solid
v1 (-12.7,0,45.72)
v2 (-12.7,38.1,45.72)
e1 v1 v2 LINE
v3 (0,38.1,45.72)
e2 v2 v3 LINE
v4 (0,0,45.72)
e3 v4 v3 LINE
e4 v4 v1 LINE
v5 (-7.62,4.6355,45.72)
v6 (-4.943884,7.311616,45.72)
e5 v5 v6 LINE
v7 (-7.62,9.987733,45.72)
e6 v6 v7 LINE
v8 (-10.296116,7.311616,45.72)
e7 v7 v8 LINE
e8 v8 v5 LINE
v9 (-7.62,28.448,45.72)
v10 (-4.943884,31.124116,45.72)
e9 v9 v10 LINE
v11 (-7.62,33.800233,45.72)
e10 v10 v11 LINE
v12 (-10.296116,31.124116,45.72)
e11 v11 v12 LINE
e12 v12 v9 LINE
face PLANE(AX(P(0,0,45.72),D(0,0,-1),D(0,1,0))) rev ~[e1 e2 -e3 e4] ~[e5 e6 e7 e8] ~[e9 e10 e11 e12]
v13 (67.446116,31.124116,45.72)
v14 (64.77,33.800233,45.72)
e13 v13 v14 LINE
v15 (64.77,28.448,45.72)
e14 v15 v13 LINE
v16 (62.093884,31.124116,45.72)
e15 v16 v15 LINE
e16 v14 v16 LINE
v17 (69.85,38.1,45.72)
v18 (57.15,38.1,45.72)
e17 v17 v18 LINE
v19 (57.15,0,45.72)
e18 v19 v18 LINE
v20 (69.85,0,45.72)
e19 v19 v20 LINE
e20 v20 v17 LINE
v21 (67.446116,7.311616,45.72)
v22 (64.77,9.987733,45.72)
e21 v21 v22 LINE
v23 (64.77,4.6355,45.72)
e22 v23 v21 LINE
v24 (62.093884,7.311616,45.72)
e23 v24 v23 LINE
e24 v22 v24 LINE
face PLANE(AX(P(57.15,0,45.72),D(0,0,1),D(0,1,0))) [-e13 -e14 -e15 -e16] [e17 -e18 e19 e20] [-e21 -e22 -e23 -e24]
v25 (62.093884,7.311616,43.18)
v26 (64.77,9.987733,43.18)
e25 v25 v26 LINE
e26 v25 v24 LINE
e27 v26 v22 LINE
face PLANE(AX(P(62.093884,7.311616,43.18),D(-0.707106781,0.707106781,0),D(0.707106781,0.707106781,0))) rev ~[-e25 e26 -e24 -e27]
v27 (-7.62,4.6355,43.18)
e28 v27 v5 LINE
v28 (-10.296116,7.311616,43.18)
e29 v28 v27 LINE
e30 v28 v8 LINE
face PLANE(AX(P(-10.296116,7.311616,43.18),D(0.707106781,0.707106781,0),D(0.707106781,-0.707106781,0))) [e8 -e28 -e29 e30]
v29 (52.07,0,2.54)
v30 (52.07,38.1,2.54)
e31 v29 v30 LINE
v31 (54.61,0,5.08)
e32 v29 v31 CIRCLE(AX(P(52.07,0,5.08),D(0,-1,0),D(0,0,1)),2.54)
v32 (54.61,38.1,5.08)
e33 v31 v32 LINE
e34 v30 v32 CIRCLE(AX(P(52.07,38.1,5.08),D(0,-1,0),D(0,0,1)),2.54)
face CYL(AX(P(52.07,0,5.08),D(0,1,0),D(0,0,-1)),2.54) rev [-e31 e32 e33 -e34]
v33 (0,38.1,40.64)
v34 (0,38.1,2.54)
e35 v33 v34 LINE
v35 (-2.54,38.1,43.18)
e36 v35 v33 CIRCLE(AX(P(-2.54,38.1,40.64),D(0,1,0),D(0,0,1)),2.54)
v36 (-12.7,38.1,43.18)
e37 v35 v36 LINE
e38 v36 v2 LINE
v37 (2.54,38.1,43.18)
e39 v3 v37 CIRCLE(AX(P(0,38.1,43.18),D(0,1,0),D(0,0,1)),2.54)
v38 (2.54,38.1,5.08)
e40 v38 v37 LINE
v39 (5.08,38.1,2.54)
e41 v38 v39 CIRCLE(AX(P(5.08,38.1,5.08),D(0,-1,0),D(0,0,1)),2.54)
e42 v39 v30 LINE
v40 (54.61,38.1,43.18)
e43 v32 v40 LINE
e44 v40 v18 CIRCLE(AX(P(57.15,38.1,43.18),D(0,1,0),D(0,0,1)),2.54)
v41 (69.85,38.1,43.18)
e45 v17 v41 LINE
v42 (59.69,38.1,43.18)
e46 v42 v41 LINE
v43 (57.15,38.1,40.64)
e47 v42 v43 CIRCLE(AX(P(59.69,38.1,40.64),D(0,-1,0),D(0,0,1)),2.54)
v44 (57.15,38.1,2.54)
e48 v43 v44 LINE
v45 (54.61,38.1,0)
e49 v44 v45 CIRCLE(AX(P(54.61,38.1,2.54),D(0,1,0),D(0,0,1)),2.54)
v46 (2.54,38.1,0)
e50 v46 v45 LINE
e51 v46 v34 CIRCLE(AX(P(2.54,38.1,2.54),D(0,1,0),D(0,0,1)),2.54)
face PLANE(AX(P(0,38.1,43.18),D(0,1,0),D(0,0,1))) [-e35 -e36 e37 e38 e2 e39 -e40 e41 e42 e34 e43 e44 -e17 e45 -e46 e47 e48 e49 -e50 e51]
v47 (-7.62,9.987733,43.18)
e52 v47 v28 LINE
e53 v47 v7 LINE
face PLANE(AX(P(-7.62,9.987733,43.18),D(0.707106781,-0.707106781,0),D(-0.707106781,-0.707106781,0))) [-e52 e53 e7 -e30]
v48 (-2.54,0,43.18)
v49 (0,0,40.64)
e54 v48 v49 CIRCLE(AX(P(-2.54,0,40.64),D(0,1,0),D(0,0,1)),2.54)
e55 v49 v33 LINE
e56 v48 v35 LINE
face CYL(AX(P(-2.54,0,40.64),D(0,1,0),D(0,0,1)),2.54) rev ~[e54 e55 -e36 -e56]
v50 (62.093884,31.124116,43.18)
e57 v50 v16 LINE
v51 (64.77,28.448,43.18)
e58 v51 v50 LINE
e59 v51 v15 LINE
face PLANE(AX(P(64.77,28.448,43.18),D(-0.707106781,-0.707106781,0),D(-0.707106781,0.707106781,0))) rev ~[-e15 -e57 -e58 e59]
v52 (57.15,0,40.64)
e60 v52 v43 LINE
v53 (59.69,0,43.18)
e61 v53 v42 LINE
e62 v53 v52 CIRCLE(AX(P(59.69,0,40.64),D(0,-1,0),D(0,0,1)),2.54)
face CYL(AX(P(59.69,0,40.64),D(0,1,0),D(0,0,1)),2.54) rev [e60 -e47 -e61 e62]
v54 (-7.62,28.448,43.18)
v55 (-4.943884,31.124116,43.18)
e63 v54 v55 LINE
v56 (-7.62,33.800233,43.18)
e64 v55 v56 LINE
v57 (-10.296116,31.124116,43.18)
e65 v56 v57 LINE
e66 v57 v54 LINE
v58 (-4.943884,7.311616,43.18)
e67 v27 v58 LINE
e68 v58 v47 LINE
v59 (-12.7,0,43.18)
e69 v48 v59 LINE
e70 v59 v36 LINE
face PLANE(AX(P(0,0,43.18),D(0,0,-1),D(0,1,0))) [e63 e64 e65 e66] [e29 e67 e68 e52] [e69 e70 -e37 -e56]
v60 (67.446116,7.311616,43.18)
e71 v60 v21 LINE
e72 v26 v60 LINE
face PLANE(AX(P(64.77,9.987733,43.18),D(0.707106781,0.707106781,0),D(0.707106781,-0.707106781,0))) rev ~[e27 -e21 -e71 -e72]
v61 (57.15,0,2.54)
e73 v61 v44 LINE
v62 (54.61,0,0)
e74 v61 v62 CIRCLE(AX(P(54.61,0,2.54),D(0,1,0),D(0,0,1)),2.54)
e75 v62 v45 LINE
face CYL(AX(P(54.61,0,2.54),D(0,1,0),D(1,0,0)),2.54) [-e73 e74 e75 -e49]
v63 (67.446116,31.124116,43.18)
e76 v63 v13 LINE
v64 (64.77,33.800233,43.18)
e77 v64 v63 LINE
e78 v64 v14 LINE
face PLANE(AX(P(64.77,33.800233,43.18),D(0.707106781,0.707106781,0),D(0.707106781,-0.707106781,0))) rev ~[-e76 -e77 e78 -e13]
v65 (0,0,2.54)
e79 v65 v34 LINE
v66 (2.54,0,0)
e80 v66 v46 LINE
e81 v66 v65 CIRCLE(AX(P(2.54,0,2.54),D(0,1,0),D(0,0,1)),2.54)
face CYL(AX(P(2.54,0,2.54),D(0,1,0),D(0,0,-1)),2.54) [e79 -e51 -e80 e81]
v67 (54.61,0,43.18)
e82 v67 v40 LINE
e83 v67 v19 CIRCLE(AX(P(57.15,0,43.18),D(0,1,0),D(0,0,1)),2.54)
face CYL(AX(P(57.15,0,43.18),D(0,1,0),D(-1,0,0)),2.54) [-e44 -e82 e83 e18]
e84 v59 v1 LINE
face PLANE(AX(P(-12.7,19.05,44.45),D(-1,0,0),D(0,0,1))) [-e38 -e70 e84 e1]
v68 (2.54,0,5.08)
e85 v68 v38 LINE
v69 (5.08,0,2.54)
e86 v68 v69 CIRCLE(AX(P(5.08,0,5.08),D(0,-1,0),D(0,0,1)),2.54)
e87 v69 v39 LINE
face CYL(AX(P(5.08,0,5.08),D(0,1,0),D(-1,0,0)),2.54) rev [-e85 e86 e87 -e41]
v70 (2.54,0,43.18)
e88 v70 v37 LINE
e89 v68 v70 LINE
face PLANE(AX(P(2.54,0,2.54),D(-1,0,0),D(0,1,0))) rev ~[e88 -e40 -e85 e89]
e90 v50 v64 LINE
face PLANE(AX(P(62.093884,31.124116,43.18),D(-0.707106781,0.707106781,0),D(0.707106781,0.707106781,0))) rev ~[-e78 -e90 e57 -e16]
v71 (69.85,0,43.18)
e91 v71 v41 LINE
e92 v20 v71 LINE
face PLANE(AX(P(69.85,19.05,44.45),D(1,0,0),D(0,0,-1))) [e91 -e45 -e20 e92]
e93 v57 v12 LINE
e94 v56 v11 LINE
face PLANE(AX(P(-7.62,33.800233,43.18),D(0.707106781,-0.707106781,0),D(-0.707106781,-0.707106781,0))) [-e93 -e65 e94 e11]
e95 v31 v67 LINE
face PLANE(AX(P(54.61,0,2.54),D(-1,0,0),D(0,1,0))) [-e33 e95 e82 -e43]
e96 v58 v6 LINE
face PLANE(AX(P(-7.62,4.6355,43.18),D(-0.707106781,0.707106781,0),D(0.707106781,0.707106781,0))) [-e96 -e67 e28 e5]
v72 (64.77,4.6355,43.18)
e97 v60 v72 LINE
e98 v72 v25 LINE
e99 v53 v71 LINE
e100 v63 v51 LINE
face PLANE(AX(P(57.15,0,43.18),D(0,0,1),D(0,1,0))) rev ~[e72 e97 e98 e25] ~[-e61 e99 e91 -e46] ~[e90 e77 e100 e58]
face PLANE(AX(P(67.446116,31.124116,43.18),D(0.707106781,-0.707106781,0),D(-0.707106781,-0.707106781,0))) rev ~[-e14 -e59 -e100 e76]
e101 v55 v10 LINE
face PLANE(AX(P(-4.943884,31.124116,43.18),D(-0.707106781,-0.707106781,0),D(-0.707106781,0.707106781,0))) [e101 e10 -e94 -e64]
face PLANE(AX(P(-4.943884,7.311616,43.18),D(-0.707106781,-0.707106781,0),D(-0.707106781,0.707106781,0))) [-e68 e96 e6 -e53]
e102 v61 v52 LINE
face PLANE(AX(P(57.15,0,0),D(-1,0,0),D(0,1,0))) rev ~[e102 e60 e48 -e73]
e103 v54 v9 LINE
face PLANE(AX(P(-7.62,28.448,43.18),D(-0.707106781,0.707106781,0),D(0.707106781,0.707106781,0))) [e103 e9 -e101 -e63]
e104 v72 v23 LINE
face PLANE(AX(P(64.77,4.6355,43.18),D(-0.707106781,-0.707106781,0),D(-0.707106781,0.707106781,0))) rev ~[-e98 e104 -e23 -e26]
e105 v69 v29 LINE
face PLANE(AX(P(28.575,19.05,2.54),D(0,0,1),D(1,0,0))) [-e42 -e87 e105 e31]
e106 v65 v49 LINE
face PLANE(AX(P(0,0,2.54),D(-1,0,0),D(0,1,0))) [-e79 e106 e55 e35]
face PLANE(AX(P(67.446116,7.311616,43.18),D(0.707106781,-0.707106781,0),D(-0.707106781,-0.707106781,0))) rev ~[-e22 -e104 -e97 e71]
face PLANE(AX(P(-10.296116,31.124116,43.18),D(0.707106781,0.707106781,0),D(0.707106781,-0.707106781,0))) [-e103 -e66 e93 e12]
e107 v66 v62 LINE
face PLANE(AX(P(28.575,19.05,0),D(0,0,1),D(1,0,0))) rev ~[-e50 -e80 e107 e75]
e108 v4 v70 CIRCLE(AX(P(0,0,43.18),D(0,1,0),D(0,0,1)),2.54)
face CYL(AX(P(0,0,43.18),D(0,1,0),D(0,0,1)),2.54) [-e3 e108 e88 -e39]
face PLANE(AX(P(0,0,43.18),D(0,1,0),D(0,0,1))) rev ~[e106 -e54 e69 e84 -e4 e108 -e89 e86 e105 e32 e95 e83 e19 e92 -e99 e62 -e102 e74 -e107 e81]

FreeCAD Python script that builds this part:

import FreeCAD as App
import Part
import Sketcher
from FreeCAD import Vector
Q = App.Units.Quantity


def edges_at(feature, points):
    """Names of the edges that pass closest to the given points."""
    edges = feature.Shape.Edges
    near = lambda p: min(range(len(edges)), key=lambda i: edges[i].distToShape(Part.Vertex(*p))[0])
    return sorted({f"Edge{near(p) + 1}" for p in points})

doc = App.newDocument("Part")
body = doc.addObject("PartDesign::Body", "Body")

# Sketch on XY plane
sketch1 = doc.addObject("Sketcher::SketchObject", "Sketch")
body.addObject(sketch1)
sketch1.AttachmentSupport = (doc.XY_Plane, [""])
sketch1.MapMode = "FlatFace"
sketch1.addGeometry(Part.LineSegment(Vector(0, 38, 0), Vector(0, 0, 0)), False)
sketch1.addGeometry(Part.LineSegment(Vector(0, 0, 0), Vector(57, 0, 0)), False)
sketch1.addGeometry(Part.LineSegment(Vector(57, 0, 0), Vector(57, 38, 0)), False)
sketch1.addGeometry(Part.LineSegment(Vector(57, 38, 0), Vector(0, 38, 0)), False)
sketch1.addConstraint(Sketcher.Constraint("Coincident", 0, 2, 1, 1))
sketch1.addConstraint(Sketcher.Constraint("Coincident", 1, 2, 2, 1))
sketch1.addConstraint(Sketcher.Constraint("Coincident", 2, 2, 3, 1))
sketch1.addConstraint(Sketcher.Constraint("Coincident", 3, 2, 0, 1))
sketch1.addConstraint(Sketcher.Constraint("Vertical", 0))
sketch1.addConstraint(Sketcher.Constraint("Horizontal", 1))
sketch1.addConstraint(Sketcher.Constraint("Vertical", 2))
sketch1.addConstraint(Sketcher.Constraint("Horizontal", 3))
sketch1.addConstraint(Sketcher.Constraint("Coincident", 0, 2, -1, 1))
sketch1.addConstraint(Sketcher.Constraint("DistanceY", 0, 2, 0, 1, Q("1.5 in")))
sketch1.addConstraint(Sketcher.Constraint("DistanceX", 1, 1, 1, 2, Q("2.25 in")))
pad1 = doc.addObject("PartDesign::Pad", "Pad")
body.addObject(pad1)
pad1.Profile = sketch1
pad1.Length = Q("0.1 in")

# Sketch on XY plane
sketch2 = doc.addObject("Sketcher::SketchObject", "Sketch001")
body.addObject(sketch2)
sketch2.AttachmentSupport = (doc.XY_Plane, [""])
sketch2.MapMode = "FlatFace"
sketch2.AttachmentOffset = App.Placement(Vector(0, 0, 0.1 * 25.4), App.Rotation())
sketch2.addGeometry(Part.LineSegment(Vector(0, 38.1, 0), Vector(0, 0, 0)), False)
sketch2.addGeometry(Part.LineSegment(Vector(0, 0, 0), Vector(2.5, 0, 0)), False)
sketch2.addGeometry(Part.LineSegment(Vector(2.5, 0, 0), Vector(2.5, 38.1, 0)), False)
sketch2.addGeometry(Part.LineSegment(Vector(2.5, 38.1, 0), Vector(0, 38.1, 0)), False)
sketch2.addGeometry(Part.LineSegment(Vector(54.6, 38.1, 0), Vector(54.6, 0, 0)), False)
sketch2.addGeometry(Part.LineSegment(Vector(54.6, 0, 0), Vector(57.1, 0, 0)), False)
sketch2.addGeometry(Part.LineSegment(Vector(57.1, 0, 0), Vector(57.1, 38.1, 0)), False)
sketch2.addGeometry(Part.LineSegment(Vector(57.1, 38.1, 0), Vector(54.6, 38.1, 0)), False)
sketch2.addConstraint(Sketcher.Constraint("Coincident", 0, 2, 1, 1))
sketch2.addConstraint(Sketcher.Constraint("Coincident", 1, 2, 2, 1))
sketch2.addConstraint(Sketcher.Constraint("Coincident", 2, 2, 3, 1))
sketch2.addConstraint(Sketcher.Constraint("Coincident", 3, 2, 0, 1))
sketch2.addConstraint(Sketcher.Constraint("Coincident", 4, 2, 5, 1))
sketch2.addConstraint(Sketcher.Constraint("Coincident", 5, 2, 6, 1))
sketch2.addConstraint(Sketcher.Constraint("Coincident", 6, 2, 7, 1))
sketch2.addConstraint(Sketcher.Constraint("Coincident", 7, 2, 4, 1))
sketch2.addConstraint(Sketcher.Constraint("Vertical", 0))
sketch2.addConstraint(Sketcher.Constraint("Horizontal", 1))
sketch2.addConstraint(Sketcher.Constraint("Vertical", 2))
sketch2.addConstraint(Sketcher.Constraint("Horizontal", 3))
sketch2.addConstraint(Sketcher.Constraint("Vertical", 4))
sketch2.addConstraint(Sketcher.Constraint("Horizontal", 5))
sketch2.addConstraint(Sketcher.Constraint("Vertical", 6))
sketch2.addConstraint(Sketcher.Constraint("Horizontal", 7))
sketch2.addConstraint(Sketcher.Constraint("Coincident", 0, 2, -1, 1))
sketch2.addConstraint(Sketcher.Constraint("PointOnObject", 4, 2, -1))
sketch2.addConstraint(Sketcher.Constraint("Horizontal", 3, 2, 6, 2))
sketch2.addConstraint(Sketcher.Constraint("Equal", 3, 5))
sketch2.addConstraint(Sketcher.Constraint("DistanceX", 1, 1, 1, 2, Q("0.1 in")))
sketch2.addConstraint(Sketcher.Constraint("DistanceY", 0, 2, 0, 1, Q("1.5 in")))
sketch2.addConstraint(Sketcher.Constraint("DistanceX", -1, 1, 4, 2, Q("2.15 in")))
pad2 = doc.addObject("PartDesign::Pad", "Pad001")
body.addObject(pad2)
pad2.Profile = sketch2
pad2.Length = Q("1.7 in")

# Sketch on YZ plane
sketch3 = doc.addObject("Sketcher::SketchObject", "Sketch002")
body.addObject(sketch3)
sketch3.AttachmentSupport = (doc.YZ_Plane, [""])
sketch3.MapMode = "FlatFace"
sketch3.AttachmentOffset = App.Placement(Vector(0, 0, 2.25 * 25.4), App.Rotation())
sketch3.addGeometry(Part.LineSegment(Vector(38.1, 45.7, 0), Vector(0, 45.7, 0)), False)
sketch3.addGeometry(Part.LineSegment(Vector(0, 45.7, 0), Vector(0, 43.2, 0)), False)
sketch3.addGeometry(Part.LineSegment(Vector(0, 43.2, 0), Vector(38.1, 43.2, 0)), False)
sketch3.addGeometry(Part.LineSegment(Vector(38.1, 43.2, 0), Vector(38.1, 45.7, 0)), False)
sketch3.addConstraint(Sketcher.Constraint("Coincident", 0, 2, 1, 1))
sketch3.addConstraint(Sketcher.Constraint("Coincident", 1, 2, 2, 1))
sketch3.addConstraint(Sketcher.Constraint("Coincident", 2, 2, 3, 1))
sketch3.addConstraint(Sketcher.Constraint("Coincident", 3, 2, 0, 1))
sketch3.addConstraint(Sketcher.Constraint("Horizontal", 0))
sketch3.addConstraint(Sketcher.Constraint("Vertical", 1))
sketch3.addConstraint(Sketcher.Constraint("Horizontal", 2))
sketch3.addConstraint(Sketcher.Constraint("Vertical", 3))
sketch3.addConstraint(Sketcher.Constraint("PointOnObject", 0, 2, -2))
sketch3.addConstraint(Sketcher.Constraint("DistanceX", 0, 2, 0, 1, Q("1.5 in")))
sketch3.addConstraint(Sketcher.Constraint("DistanceY", 1, 2, 1, 1, Q("0.1 in")))
sketch3.addConstraint(Sketcher.Constraint("DistanceY", -1, 1, 0, 2, Q("1.8 in")))
pad3 = doc.addObject("PartDesign::Pad", "Pad002")
body.addObject(pad3)
pad3.Profile = sketch3
pad3.Length = Q("0.5 in")

# Sketch on YZ plane
sketch4 = doc.addObject("Sketcher::SketchObject", "Sketch003")
body.addObject(sketch4)
sketch4.AttachmentSupport = (doc.YZ_Plane, [""])
sketch4.MapMode = "FlatFace"
sketch4.addGeometry(Part.LineSegment(Vector(38.1, 43.2, 0), Vector(0, 43.2, 0)), False)
sketch4.addGeometry(Part.LineSegment(Vector(0, 43.2, 0), Vector(0, 45.7, 0)), False)
sketch4.addGeometry(Part.LineSegment(Vector(0, 45.7, 0), Vector(38.1, 45.7, 0)), False)
sketch4.addGeometry(Part.LineSegment(Vector(38.1, 45.7, 0), Vector(38.1, 43.2, 0)), False)
sketch4.addConstraint(Sketcher.Constraint("Coincident", 0, 2, 1, 1))
sketch4.addConstraint(Sketcher.Constraint("Coincident", 1, 2, 2, 1))
sketch4.addConstraint(Sketcher.Constraint("Coincident", 2, 2, 3, 1))
sketch4.addConstraint(Sketcher.Constraint("Coincident", 3, 2, 0, 1))
sketch4.addConstraint(Sketcher.Constraint("Horizontal", 0))
sketch4.addConstraint(Sketcher.Constraint("Vertical", 1))
sketch4.addConstraint(Sketcher.Constraint("Horizontal", 2))
sketch4.addConstraint(Sketcher.Constraint("Vertical", 3))
sketch4.addConstraint(Sketcher.Constraint("PointOnObject", 0, 2, -2))
sketch4.addConstraint(Sketcher.Constraint("DistanceX", 0, 2, 0, 1, Q("1.5 in")))
sketch4.addConstraint(Sketcher.Constraint("DistanceY", 1, 1, 1, 2, Q("0.1 in")))
sketch4.addConstraint(Sketcher.Constraint("DistanceY", -1, 1, 0, 2, Q("1.7 in")))
pad4 = doc.addObject("PartDesign::Pad", "Pad003")
body.addObject(pad4)
pad4.Profile = sketch4
pad4.Length = Q("0.5 in")
pad4.Reversed = True
doc.recompute()

fillet = doc.addObject("PartDesign::Fillet", "Fillet")
body.addObject(fillet)
fillet.Base = (pad4, edges_at(pad4, [
    (2.54, 19.05, 2.54),
    (2.54, 19.05, 45.72),
    (54.61, 19.05, 2.54),
    (54.61, 19.05, 45.72),
    (57.15, 19.05, 43.18),
    (57.15, 19.05, 0),
    (0, 19.05, 43.18),
    (0, 19.05, 0),
]))
fillet.Radius = Q("0.1 in")

# Sketch on XY plane
sketch5 = doc.addObject("Sketcher::SketchObject", "Sketch004")
body.addObject(sketch5)
sketch5.AttachmentSupport = (doc.XY_Plane, [""])
sketch5.MapMode = "FlatFace"
sketch5.AttachmentOffset = App.Placement(Vector(0, 0, 1.7 * 25.4), App.Rotation())
sketch5.addGeometry(Part.LineSegment(Vector(64.8, 33.8, 0), Vector(67.4, 31.1, 0)), False)
sketch5.addGeometry(Part.LineSegment(Vector(67.4, 31.1, 0), Vector(64.8, 28.4, 0)), False)
sketch5.addGeometry(Part.LineSegment(Vector(64.8, 28.4, 0), Vector(62.1, 31.1, 0)), False)
sketch5.addGeometry(Part.LineSegment(Vector(62.1, 31.1, 0), Vector(64.8, 33.8, 0)), False)
sketch5.addGeometry(Part.LineSegment(Vector(64.8, 10, 0), Vector(67.4, 7.3, 0)), False)
sketch5.addGeometry(Part.LineSegment(Vector(67.4, 7.3, 0), Vector(64.8, 4.6, 0)), False)
sketch5.addGeometry(Part.LineSegment(Vector(64.8, 4.6, 0), Vector(62.1, 7.3, 0)), False)
sketch5.addGeometry(Part.LineSegment(Vector(62.1, 7.3, 0), Vector(64.8, 10, 0)), False)
sketch5.addGeometry(Part.LineSegment(Vector(-7.6, 10, 0), Vector(-4.9, 7.3, 0)), False)
sketch5.addGeometry(Part.LineSegment(Vector(-4.9, 7.3, 0), Vector(-7.6, 4.6, 0)), False)
sketch5.addGeometry(Part.LineSegment(Vector(-7.6, 4.6, 0), Vector(-10.3, 7.3, 0)), False)
sketch5.addGeometry(Part.LineSegment(Vector(-10.3, 7.3, 0), Vector(-7.6, 10, 0)), False)
sketch5.addGeometry(Part.LineSegment(Vector(-7.6, 33.8, 0), Vector(-4.9, 31.1, 0)), False)
sketch5.addGeometry(Part.LineSegment(Vector(-4.9, 31.1, 0), Vector(-7.6, 28.4, 0)), False)
sketch5.addGeometry(Part.LineSegment(Vector(-7.6, 28.4, 0), Vector(-10.3, 31.1, 0)), False)
sketch5.addGeometry(Part.LineSegment(Vector(-10.3, 31.1, 0), Vector(-7.6, 33.8, 0)), False)
sketch5.addConstraint(Sketcher.Constraint("Coincident", 0, 2, 1, 1))
sketch5.addConstraint(Sketcher.Constraint("Coincident", 1, 2, 2, 1))
sketch5.addConstraint(Sketcher.Constraint("Coincident", 2, 2, 3, 1))
sketch5.addConstraint(Sketcher.Constraint("Coincident", 3, 2, 0, 1))
sketch5.addConstraint(Sketcher.Constraint("Coincident", 4, 2, 5, 1))
sketch5.addConstraint(Sketcher.Constraint("Coincident", 5, 2, 6, 1))
sketch5.addConstraint(Sketcher.Constraint("Coincident", 6, 2, 7, 1))
sketch5.addConstraint(Sketcher.Constraint("Coincident", 7, 2, 4, 1))
sketch5.addConstraint(Sketcher.Constraint("Coincident", 8, 2, 9, 1))
sketch5.addConstraint(Sketcher.Constraint("Coincident", 9, 2, 10, 1))
sketch5.addConstraint(Sketcher.Constraint("Coincident", 10, 2, 11, 1))
sketch5.addConstraint(Sketcher.Constraint("Coincident", 11, 2, 8, 1))
sketch5.addConstraint(Sketcher.Constraint("Coincident", 12, 2, 13, 1))
sketch5.addConstraint(Sketcher.Constraint("Coincident", 13, 2, 14, 1))
sketch5.addConstraint(Sketcher.Constraint("Coincident", 14, 2, 15, 1))
sketch5.addConstraint(Sketcher.Constraint("Coincident", 15, 2, 12, 1))
sketch5.addConstraint(Sketcher.Constraint("Perpendicular", 0, 1))
sketch5.addConstraint(Sketcher.Constraint("Perpendicular", 1, 2))
sketch5.addConstraint(Sketcher.Constraint("Perpendicular", 2, 3))
sketch5.addConstraint(Sketcher.Constraint("Perpendicular", 3, 4))
sketch5.addConstraint(Sketcher.Constraint("Perpendicular", 4, 5))
sketch5.addConstraint(Sketcher.Constraint("Perpendicular", 5, 6))
sketch5.addConstraint(Sketcher.Constraint("Perpendicular", 6, 7))
sketch5.addConstraint(Sketcher.Constraint("Perpendicular", 7, 8))
sketch5.addConstraint(Sketcher.Constraint("Perpendicular", 8, 9))
sketch5.addConstraint(Sketcher.Constraint("Perpendicular", 9, 10))
sketch5.addConstraint(Sketcher.Constraint("Perpendicular", 10, 11))
sketch5.addConstraint(Sketcher.Constraint("Perpendicular", 11, 12))
sketch5.addConstraint(Sketcher.Constraint("Perpendicular", 12, 13))
sketch5.addConstraint(Sketcher.Constraint("Perpendicular", 13, 14))
sketch5.addConstraint(Sketcher.Constraint("Perpendicular", 14, 15))
sketch5.addConstraint(Sketcher.Constraint("Horizontal", 0, 2, 2, 2))
sketch5.addConstraint(Sketcher.Constraint("Horizontal", 4, 2, 6, 2))
sketch5.addConstraint(Sketcher.Constraint("Horizontal", 6, 2, 8, 2))
sketch5.addConstraint(Sketcher.Constraint("Horizontal", 5, 2, 9, 2))
sketch5.addConstraint(Sketcher.Constraint("Horizontal", 8, 2, 10, 2))
sketch5.addConstraint(Sketcher.Constraint("Horizontal", 2, 2, 12, 2))
sketch5.addConstraint(Sketcher.Constraint("Horizontal", 1, 2, 13, 2))
sketch5.addConstraint(Sketcher.Constraint("Horizontal", 12, 2, 14, 2))
sketch5.addConstraint(Sketcher.Constraint("Vertical", 1, 2, 3, 2))
sketch5.addConstraint(Sketcher.Constraint("Vertical", 0, 2, 4, 2))
sketch5.addConstraint(Sketcher.Constraint("Vertical", 3, 2, 5, 2))
sketch5.addConstraint(Sketcher.Constraint("Vertical", 8, 2, 12, 2))
sketch5.addConstraint(Sketcher.Constraint("DistanceX", 9, 2, -1, 1, Q("0.3 in")))
sketch5.addConstraint(Sketcher.Constraint("DistanceX", -1, 1, 1, 2, Q("2.55 in")))
sketch5.addConstraint(Sketcher.Constraint("DistanceY", -1, 1, 1, 2, Q("1.12 in")))
sketch5.addConstraint(Sketcher.Constraint("Distance", 0, Q("0.149 in")))
sketch5.addConstraint(Sketcher.Constraint("DistanceY", 4, 2, 0, 2, Q("0.9375 in")))
pocket1 = doc.addObject("PartDesign::Pocket", "Pocket")
body.addObject(pocket1)
pocket1.Profile = sketch5
pocket1.Type = "ThroughAll"
pocket1.Reversed = True

doc.recompute()
